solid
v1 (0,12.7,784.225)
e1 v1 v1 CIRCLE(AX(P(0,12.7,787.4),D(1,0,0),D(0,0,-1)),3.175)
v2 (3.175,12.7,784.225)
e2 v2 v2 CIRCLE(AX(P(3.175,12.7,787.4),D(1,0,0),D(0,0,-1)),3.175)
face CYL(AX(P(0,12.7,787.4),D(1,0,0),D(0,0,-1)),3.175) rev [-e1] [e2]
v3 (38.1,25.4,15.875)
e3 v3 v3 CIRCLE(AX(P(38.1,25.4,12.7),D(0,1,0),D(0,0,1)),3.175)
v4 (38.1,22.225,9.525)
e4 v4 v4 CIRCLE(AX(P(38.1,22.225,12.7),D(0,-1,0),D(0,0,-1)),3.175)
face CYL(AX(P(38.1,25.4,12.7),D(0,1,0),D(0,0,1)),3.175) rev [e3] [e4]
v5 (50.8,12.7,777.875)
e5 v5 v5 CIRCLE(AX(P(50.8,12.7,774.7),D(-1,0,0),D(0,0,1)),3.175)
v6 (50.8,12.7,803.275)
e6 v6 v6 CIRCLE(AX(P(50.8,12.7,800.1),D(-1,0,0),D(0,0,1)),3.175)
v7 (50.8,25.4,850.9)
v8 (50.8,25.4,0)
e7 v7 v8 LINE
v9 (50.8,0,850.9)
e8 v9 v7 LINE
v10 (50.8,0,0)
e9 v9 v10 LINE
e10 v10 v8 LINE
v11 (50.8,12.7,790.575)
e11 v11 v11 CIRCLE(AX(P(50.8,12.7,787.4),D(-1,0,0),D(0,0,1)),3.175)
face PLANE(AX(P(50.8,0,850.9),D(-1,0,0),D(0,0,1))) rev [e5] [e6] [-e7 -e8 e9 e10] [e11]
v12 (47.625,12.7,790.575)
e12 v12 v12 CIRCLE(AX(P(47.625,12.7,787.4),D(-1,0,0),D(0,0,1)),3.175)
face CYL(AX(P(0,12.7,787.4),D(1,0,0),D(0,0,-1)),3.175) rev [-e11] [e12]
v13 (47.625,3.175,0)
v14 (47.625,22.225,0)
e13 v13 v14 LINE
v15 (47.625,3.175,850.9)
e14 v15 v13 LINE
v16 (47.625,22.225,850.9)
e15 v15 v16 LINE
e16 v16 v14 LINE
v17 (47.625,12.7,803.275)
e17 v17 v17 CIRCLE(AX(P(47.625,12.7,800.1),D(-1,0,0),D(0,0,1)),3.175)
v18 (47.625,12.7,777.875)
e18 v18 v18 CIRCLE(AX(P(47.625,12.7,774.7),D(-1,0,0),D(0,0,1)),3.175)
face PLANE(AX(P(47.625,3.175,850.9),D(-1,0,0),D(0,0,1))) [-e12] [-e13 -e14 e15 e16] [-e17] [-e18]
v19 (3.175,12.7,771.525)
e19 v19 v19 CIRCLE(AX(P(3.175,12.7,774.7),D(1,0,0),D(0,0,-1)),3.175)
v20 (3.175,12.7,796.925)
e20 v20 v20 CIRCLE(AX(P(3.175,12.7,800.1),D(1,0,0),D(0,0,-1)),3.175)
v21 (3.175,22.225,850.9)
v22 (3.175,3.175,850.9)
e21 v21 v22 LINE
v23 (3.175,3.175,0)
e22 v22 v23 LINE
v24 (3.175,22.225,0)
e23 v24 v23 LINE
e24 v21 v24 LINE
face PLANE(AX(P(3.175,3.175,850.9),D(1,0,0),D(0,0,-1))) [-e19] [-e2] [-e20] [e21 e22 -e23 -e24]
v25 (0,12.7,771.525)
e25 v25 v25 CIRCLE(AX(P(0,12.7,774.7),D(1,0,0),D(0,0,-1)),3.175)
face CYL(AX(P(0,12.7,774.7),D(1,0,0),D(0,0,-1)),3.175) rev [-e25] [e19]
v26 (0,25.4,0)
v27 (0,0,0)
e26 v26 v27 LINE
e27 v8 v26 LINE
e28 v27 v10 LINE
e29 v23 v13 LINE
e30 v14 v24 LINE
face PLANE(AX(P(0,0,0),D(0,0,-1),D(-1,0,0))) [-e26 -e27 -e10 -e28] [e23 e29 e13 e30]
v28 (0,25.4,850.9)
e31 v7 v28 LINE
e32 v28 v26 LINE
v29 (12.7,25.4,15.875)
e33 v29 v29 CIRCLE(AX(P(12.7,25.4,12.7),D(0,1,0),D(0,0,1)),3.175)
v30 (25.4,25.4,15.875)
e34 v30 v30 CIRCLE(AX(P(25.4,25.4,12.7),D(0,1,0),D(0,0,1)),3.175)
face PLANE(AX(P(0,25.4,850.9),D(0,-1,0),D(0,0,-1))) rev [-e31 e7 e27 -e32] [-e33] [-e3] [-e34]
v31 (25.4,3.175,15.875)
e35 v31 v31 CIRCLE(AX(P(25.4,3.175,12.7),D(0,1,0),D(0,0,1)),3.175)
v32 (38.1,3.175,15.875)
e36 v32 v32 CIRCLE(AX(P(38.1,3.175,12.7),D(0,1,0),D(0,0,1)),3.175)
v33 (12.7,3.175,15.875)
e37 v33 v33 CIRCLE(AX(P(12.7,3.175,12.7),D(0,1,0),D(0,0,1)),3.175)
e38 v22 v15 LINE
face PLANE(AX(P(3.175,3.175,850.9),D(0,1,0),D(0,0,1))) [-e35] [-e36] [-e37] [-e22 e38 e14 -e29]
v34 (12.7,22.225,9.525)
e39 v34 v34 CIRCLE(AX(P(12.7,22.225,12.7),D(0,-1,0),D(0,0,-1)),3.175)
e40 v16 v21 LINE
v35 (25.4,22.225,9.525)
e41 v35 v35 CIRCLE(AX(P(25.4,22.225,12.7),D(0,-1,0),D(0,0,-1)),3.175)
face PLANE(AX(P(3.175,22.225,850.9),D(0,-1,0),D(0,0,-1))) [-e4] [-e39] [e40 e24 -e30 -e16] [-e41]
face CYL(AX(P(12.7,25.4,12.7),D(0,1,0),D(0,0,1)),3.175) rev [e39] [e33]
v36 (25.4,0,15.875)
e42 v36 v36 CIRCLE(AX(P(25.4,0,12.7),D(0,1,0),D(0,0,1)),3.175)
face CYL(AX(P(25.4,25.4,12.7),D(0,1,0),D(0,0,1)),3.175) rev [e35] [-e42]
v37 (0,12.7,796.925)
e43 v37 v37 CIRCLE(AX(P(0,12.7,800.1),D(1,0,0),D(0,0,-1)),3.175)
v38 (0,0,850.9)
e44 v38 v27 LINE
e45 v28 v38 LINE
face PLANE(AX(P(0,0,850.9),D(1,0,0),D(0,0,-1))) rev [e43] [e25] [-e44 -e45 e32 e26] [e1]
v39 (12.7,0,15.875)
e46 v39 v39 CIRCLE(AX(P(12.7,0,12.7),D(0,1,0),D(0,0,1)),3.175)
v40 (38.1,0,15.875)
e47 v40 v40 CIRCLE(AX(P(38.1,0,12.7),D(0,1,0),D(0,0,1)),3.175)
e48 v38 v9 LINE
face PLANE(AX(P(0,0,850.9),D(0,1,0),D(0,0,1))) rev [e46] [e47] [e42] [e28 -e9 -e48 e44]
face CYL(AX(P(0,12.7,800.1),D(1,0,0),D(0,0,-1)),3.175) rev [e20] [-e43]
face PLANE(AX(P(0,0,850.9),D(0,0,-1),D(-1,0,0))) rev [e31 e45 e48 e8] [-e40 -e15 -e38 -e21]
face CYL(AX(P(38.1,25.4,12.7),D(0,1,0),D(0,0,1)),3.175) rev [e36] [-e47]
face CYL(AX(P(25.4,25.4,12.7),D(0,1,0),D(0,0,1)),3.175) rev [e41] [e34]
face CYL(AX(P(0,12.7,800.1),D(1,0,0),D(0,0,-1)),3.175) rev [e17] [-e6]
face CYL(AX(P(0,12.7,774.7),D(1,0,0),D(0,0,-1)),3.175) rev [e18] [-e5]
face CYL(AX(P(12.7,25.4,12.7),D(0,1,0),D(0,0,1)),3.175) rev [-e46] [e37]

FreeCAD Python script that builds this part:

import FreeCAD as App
import Part
import Sketcher

V = App.Vector
Q = App.Units.Quantity


def add_polygon(sketch, points):
    """Adds a closed chain of lines whose ends are joined by coincident constraints."""
    first, n = sketch.GeometryCount, len(points)
    for a, b in zip(points, points[1:] + points[:1]):
        sketch.addGeometry(Part.LineSegment(App.Vector(*a, 0), App.Vector(*b, 0)), False)
    for i in range(n):
        sketch.addConstraint(Sketcher.Constraint("Coincident", first + i, 2, first + (i + 1) % n, 1))

doc = App.newDocument("Part")
body = doc.addObject("PartDesign::Body", "Body")

# Sketch on XY plane
sketch1 = doc.addObject("Sketcher::SketchObject", "Sketch")
body.addObject(sketch1)
sketch1.AttachmentSupport = (doc.XY_Plane, [""])
sketch1.MapMode = "FlatFace"
add_polygon(sketch1, [(0, 25), (0, 0), (51, 0), (51, 25)])  # lines 0-3
add_polygon(sketch1, [(48, 3), (3, 3), (3, 22), (48, 22)])  # lines 4-7
sketch1.addConstraint(Sketcher.Constraint("Vertical", 0))
sketch1.addConstraint(Sketcher.Constraint("Horizontal", 1))
sketch1.addConstraint(Sketcher.Constraint("Vertical", 2))
sketch1.addConstraint(Sketcher.Constraint("Horizontal", 3))
sketch1.addConstraint(Sketcher.Constraint("Horizontal", 4))
sketch1.addConstraint(Sketcher.Constraint("Vertical", 5))
sketch1.addConstraint(Sketcher.Constraint("Horizontal", 6))
sketch1.addConstraint(Sketcher.Constraint("Vertical", 7))
sketch1.addConstraint(Sketcher.Constraint("Coincident", 0, 2, -1, 1))
sketch1.addConstraint(Sketcher.Constraint("DistanceX", 1, 1, 1, 2, Q("2 in")))
sketch1.addConstraint(Sketcher.Constraint("DistanceY", 0, 2, 0, 1, Q("1 in")))
sketch1.addConstraint(Sketcher.Constraint("DistanceX", 4, 2, 4, 1, Q("1.75 in")))
sketch1.addConstraint(Sketcher.Constraint("DistanceY", 5, 1, 5, 2, Q("0.75 in")))
sketch1.addConstraint(Sketcher.Constraint("DistanceX", -1, 1, 4, 2, Q("0.125 in")))
sketch1.addConstraint(Sketcher.Constraint("DistanceY", -1, 1, 4, 2, Q("0.125 in")))
pad1 = doc.addObject("PartDesign::Pad", "Pad")
body.addObject(pad1)
pad1.Profile = sketch1
pad1.Length = Q("33.5 in")

# Sketch on YZ plane
sketch2 = doc.addObject("Sketcher::SketchObject", "Sketch001")
body.addObject(sketch2)
sketch2.AttachmentSupport = (doc.YZ_Plane, [""])
sketch2.MapMode = "FlatFace"
sketch2.AttachmentOffset = App.Placement(V(0, 0, 2 * 25.4), App.Rotation())
sketch2.addGeometry(Part.Circle(V(12.7, 800.1, 0), V(0, 0, 1), 3.2), False)
sketch2.addGeometry(Part.Circle(V(12.7, 787.4, 0), V(0, 0, 1), 3.2), False)
sketch2.addGeometry(Part.Circle(V(12.7, 774.7, 0), V(0, 0, 1), 3.2), False)
sketch2.addConstraint(Sketcher.Constraint("Equal", 0, 1))
sketch2.addConstraint(Sketcher.Constraint("Equal", 1, 2))
sketch2.addConstraint(Sketcher.Constraint("Vertical", 0, 3, 1, 3))
sketch2.addConstraint(Sketcher.Constraint("Vertical", 1, 3, 2, 3))
sketch2.addConstraint(Sketcher.Constraint("Diameter", 0, Q("0.25 in")))
sketch2.addConstraint(Sketcher.Constraint("DistanceY", -1, 1, 1, 3, Q("31 in")))
sketch2.addConstraint(Sketcher.Constraint("DistanceY", 2, 3, 0, 3, Q("1 in")))
sketch2.addConstraint(Sketcher.Constraint("DistanceX", -1, 1, 0, 3, Q("0.5 in")))
sketch2.addConstraint(Sketcher.Constraint("DistanceY", -1, 1, 0, 3, Q("31.5 in")))
pocket1 = doc.addObject("PartDesign::Pocket", "Pocket")
body.addObject(pocket1)
pocket1.Profile = sketch2
pocket1.Type = "ThroughAll"
pocket1.Midplane = True

# Sketch on XZ plane
sketch3 = doc.addObject("Sketcher::SketchObject", "Sketch002")
body.addObject(sketch3)
sketch3.AttachmentSupport = (doc.XZ_Plane, [""])
sketch3.MapMode = "FlatFace"
sketch3.AttachmentOffset = App.Placement(V(0, 0, -1 * 25.4), App.Rotation())
sketch3.addGeometry(Part.Circle(V(12.7, 12.7, 0), V(0, 0, 1), 3.2), False)
sketch3.addGeometry(Part.Circle(V(25.4, 12.7, 0), V(0, 0, 1), 3.2), False)
sketch3.addGeometry(Part.Circle(V(38.1, 12.7, 0), V(0, 0, 1), 3.2), False)
sketch3.addConstraint(Sketcher.Constraint("Equal", 0, 1))
sketch3.addConstraint(Sketcher.Constraint("Equal", 1, 2))
sketch3.addConstraint(Sketcher.Constraint("Horizontal", 0, 3, 1, 3))
sketch3.addConstraint(Sketcher.Constraint("Horizontal", 1, 3, 2, 3))
sketch3.addConstraint(Sketcher.Constraint("Diameter", 0, Q("0.25 in")))
sketch3.addConstraint(Sketcher.Constraint("DistanceX", -1, 1, 1, 3, Q("1 in")))
sketch3.addConstraint(Sketcher.Constraint("DistanceX", 0, 3, 2, 3, Q("1 in")))
sketch3.addConstraint(Sketcher.Constraint("DistanceX", -1, 1, 0, 3, Q("0.5 in")))
sketch3.addConstraint(Sketcher.Constraint("DistanceY", -1, 1, 0, 3, Q("0.5 in")))
doc.recompute()
hole = doc.addObject("PartDesign::Hole", "Hole")
body.addObject(hole)
hole.Profile = sketch3
hole.ThreadType = "None"
hole.Diameter = Q("0.25 in")
hole.DepthType = "ThroughAll"
hole.Reversed = True

doc.recompute()
